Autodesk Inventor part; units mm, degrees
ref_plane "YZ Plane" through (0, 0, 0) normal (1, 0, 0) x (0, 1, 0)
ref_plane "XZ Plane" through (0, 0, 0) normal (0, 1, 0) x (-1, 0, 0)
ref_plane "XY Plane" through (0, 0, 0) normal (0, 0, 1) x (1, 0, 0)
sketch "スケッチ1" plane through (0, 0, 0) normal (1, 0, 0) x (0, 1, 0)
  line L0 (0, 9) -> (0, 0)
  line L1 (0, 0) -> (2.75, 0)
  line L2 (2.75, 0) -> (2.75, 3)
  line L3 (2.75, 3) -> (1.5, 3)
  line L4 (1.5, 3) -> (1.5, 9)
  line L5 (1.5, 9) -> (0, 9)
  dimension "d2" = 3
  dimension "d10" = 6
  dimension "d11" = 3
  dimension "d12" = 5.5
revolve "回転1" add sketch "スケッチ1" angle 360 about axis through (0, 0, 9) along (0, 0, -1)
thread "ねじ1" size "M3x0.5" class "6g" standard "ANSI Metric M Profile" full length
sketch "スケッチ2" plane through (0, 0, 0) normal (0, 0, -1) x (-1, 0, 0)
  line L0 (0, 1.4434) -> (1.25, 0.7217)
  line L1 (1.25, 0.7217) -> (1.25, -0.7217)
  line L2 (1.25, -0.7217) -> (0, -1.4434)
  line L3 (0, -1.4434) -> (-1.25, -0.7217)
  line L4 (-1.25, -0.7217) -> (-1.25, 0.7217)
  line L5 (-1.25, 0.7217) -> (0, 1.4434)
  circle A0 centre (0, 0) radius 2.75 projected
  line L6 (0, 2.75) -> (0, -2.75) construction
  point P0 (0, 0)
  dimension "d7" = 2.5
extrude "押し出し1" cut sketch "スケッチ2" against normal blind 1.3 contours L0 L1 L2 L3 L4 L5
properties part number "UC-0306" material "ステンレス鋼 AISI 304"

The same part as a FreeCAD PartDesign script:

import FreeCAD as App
import Part
import Sketcher

V = App.Vector
Q = App.Units.Quantity


def add_polygon(sketch, points):
    """Adds a closed chain of lines whose ends are joined by coincident constraints."""
    first, n = sketch.GeometryCount, len(points)
    for a, b in zip(points, points[1:] + points[:1]):
        sketch.addGeometry(Part.LineSegment(App.Vector(*a, 0), App.Vector(*b, 0)), False)
    for i in range(n):
        sketch.addConstraint(Sketcher.Constraint("Coincident", first + i, 2, first + (i + 1) % n, 1))

doc = App.newDocument("Part")
params = doc.addObject("Spreadsheet::Sheet", "Params")
for row, (alias, value) in enumerate([
    ("sketch1_height", "3 mm"),
    ("sketch1_height2", "6 mm"),
    ("sketch1_width", "1.5 mm"),
    ("sketch1_width2", "2.75 mm"),
    ("revolution_angle", "360 deg"),
    ("pocket1_length", "1.3 mm"),
], start=1):
    params.set(f"A{row}", alias)
    params.set(f"B{row}", "=" + value)
    params.setAlias(f"B{row}", alias)

body = doc.addObject("PartDesign::Body", "Body")

# Sketch on YZ plane
sketch1 = body.newObject("Sketcher::SketchObject", "Sketch")
sketch1.AttachmentSupport = (doc.getObject("YZ_Plane"), [""])
sketch1.MapMode = "FlatFace"
add_polygon(sketch1, [(1.5, 9), (0, 9), (0, 0), (2.8, 0), (2.8, 3), (1.5, 3)])  # lines 0-5
sketch1.addConstraint(Sketcher.Constraint("Horizontal", 0))
sketch1.addConstraint(Sketcher.Constraint("Vertical", 1))
sketch1.addConstraint(Sketcher.Constraint("Horizontal", 2))
sketch1.addConstraint(Sketcher.Constraint("Vertical", 3))
sketch1.addConstraint(Sketcher.Constraint("Horizontal", 4))
sketch1.addConstraint(Sketcher.Constraint("Vertical", 5))
sketch1.addConstraint(Sketcher.Constraint("Coincident", 1, 2, -1, 1))
sketch1.addConstraint(Sketcher.Constraint("DistanceY", 3, 1, 3, 2, Q("3 mm")))
sketch1.addConstraint(Sketcher.Constraint("DistanceY", 5, 1, 5, 2, Q("6 mm")))
sketch1.addConstraint(Sketcher.Constraint("DistanceX", 0, 2, 0, 1, Q("1.5 mm")))
sketch1.addConstraint(Sketcher.Constraint("DistanceX", 2, 1, 2, 2, Q("2.75 mm")))
sketch1.setExpression("Constraints[13]", "Params.sketch1_height")
sketch1.setExpression("Constraints[14]", "Params.sketch1_height2")
sketch1.setExpression("Constraints[15]", "Params.sketch1_width")
sketch1.setExpression("Constraints[16]", "Params.sketch1_width2")
revolution = body.newObject("PartDesign::Revolution", "Revolution")
revolution.Profile = sketch1
revolution.ReferenceAxis = (sketch1, ["V_Axis"])
revolution.setExpression("Angle", "Params.revolution_angle")

# Sketch on XY plane
sketch2 = body.newObject("Sketcher::SketchObject", "Sketch001")
sketch2.AttachmentSupport = (doc.getObject("XY_Plane"), [""])
sketch2.MapMode = "FlatFace"
add_polygon(sketch2, [(-1.2, 0.7), (0, 1.4), (1.2, 0.7), (1.2, -0.7), (0, -1.4), (-1.2, -0.7)])  # lines 0-5
sketch2.addConstraint(Sketcher.Constraint("Vertical", 2))
sketch2.addConstraint(Sketcher.Constraint("Vertical", 5))
sketch2.addConstraint(Sketcher.Constraint("Symmetric", 0, 2, 3, 2, -1, 1))
sketch2.addConstraint(Sketcher.Constraint("Symmetric", 1, 2, 4, 2, -1, 1))
sketch2.addConstraint(Sketcher.Constraint("PointOnObject", 0, 2, -2))
sketch2.addConstraint(Sketcher.Constraint("Parallel", 0, 3))
sketch2.addConstraint(Sketcher.Constraint("Horizontal", 2, 2, 4, 2))
sketch2.addConstraint(Sketcher.Constraint("DistanceX", 4, 2, 2, 2, Q("2.5 mm")))
sketch2.addConstraint(Sketcher.Constraint("Angle", 0, Q("30.0004 deg")))
sketch2.addConstraint(Sketcher.Constraint("DistanceY", 2, 2, 2, 1, Q("1.4434 mm")))
pocket1 = body.newObject("PartDesign::Pocket", "Pocket")
pocket1.Profile = sketch2
pocket1.setExpression("Length", "Params.pocket1_length")
pocket1.Reversed = True

doc.recompute()
